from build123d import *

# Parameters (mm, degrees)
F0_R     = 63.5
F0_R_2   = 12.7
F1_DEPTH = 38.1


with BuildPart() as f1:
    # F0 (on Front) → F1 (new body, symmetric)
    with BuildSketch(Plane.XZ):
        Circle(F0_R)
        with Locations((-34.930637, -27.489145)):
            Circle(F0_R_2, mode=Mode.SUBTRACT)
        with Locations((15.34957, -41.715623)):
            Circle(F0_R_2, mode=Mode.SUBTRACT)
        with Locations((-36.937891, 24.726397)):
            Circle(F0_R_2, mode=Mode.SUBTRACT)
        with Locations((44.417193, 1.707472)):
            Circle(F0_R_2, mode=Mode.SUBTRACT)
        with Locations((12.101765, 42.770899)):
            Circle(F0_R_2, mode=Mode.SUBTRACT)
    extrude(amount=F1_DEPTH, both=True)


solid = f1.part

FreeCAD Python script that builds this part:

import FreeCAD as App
import Part
import Sketcher

V = App.Vector
Q = App.Units.Quantity

doc = App.newDocument("Part")
body = doc.addObject("PartDesign::Body", "Body")

# Sketch on XZ plane
sketch1 = body.newObject("Sketcher::SketchObject", "Sketch")
sketch1.AttachmentSupport = (doc.getObject("XZ_Plane"), [""])
sketch1.MapMode = "FlatFace"
sketch1.addGeometry(Part.Circle(V(0, 0, 0), V(0, 0, 1), 64), False)
sketch1.addGeometry(Part.Circle(V(-35, -27, 0), V(0, 0, 1), 13), False)
sketch1.addGeometry(Part.Circle(V(15, -42, 0), V(0, 0, 1), 13), False)
sketch1.addGeometry(Part.Circle(V(-37, 25, 0), V(0, 0, 1), 13), False)
sketch1.addGeometry(Part.Circle(V(44, 2, 0), V(0, 0, 1), 13), False)
sketch1.addGeometry(Part.Circle(V(12, 43, 0), V(0, 0, 1), 13), False)
sketch1.addConstraint(Sketcher.Constraint("Coincident", 0, 3, -1, 1))
sketch1.addConstraint(Sketcher.Constraint("Equal", 1, 2))
sketch1.addConstraint(Sketcher.Constraint("Equal", 2, 3))
sketch1.addConstraint(Sketcher.Constraint("Equal", 3, 4))
sketch1.addConstraint(Sketcher.Constraint("Equal", 4, 5))
sketch1.addConstraint(Sketcher.Constraint("Diameter", 0, Q("5 in")))
sketch1.addConstraint(Sketcher.Constraint("Diameter", 1, Q("1 in")))
sketch1.addConstraint(Sketcher.Constraint("DistanceY", -1, 1, 5, 3, Q("42.770899 mm")))
sketch1.addConstraint(Sketcher.Constraint("DistanceX", 1, 3, 5, 3, Q("47.032402 mm")))
sketch1.addConstraint(Sketcher.Constraint("DistanceX", -1, 1, 2, 3, Q("15.34957 mm")))
sketch1.addConstraint(Sketcher.Constraint("DistanceX", 3, 3, -1, 1, Q("36.937891 mm")))
sketch1.addConstraint(Sketcher.Constraint("DistanceY", 2, 3, 3, 3, Q("66.44202 mm")))
sketch1.addConstraint(Sketcher.Constraint("DistanceX", 1, 3, 4, 3, Q("79.34783 mm")))
sketch1.addConstraint(Sketcher.Constraint("DistanceX", 1, 3, -1, 1, Q("34.930637 mm")))
sketch1.addConstraint(Sketcher.Constraint("DistanceY", 1, 3, -1, 1, Q("27.489145 mm")))
sketch1.addConstraint(Sketcher.Constraint("DistanceY", 2, 3, -1, 1, Q("41.715623 mm")))
sketch1.addConstraint(Sketcher.Constraint("DistanceY", -1, 1, 4, 3, Q("1.707472 mm")))
pad1 = body.newObject("PartDesign::Pad", "Pad")
pad1.Profile = sketch1
pad1.Length = Q("3 in")
pad1.Midplane = True

doc.recompute()
